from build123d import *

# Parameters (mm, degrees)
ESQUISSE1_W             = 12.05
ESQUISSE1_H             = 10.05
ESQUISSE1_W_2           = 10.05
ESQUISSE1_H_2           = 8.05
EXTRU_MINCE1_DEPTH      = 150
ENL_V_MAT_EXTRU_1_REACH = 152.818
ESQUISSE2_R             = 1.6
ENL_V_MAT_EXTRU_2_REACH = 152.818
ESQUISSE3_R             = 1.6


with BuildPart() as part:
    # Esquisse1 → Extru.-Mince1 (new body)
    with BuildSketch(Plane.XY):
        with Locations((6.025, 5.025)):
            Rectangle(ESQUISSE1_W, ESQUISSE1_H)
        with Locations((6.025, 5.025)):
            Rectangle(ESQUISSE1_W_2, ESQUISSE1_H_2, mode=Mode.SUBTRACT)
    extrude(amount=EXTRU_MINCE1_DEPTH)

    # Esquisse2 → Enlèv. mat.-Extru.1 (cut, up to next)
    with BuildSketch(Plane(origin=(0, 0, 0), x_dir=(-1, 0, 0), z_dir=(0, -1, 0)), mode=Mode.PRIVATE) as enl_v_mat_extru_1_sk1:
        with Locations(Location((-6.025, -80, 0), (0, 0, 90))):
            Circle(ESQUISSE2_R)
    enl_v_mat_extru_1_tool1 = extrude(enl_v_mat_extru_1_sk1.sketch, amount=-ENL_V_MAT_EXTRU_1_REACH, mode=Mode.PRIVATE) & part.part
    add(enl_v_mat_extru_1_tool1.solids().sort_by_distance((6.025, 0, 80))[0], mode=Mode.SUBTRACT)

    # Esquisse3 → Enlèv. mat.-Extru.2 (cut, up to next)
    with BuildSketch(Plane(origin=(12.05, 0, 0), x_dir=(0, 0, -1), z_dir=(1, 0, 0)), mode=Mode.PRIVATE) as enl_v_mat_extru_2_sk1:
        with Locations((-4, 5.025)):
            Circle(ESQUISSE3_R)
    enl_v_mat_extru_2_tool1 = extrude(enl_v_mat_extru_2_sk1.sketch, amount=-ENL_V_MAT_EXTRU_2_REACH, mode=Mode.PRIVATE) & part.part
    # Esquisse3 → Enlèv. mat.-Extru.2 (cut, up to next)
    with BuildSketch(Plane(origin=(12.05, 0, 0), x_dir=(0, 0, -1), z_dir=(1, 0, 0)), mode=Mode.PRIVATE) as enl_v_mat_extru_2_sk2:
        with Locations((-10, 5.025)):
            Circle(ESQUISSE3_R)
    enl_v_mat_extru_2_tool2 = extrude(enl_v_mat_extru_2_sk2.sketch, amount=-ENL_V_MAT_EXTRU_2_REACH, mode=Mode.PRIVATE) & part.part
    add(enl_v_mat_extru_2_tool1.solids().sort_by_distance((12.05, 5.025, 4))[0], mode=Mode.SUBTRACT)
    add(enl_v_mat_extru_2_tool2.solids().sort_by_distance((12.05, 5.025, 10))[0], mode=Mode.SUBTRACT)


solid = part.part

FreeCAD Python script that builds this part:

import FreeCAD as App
import Part
import Sketcher

V = App.Vector


def add_polygon(sketch, points):
    """Adds a closed chain of lines whose ends are joined by coincident constraints."""
    first, n = sketch.GeometryCount, len(points)
    for a, b in zip(points, points[1:] + points[:1]):
        sketch.addGeometry(Part.LineSegment(App.Vector(*a, 0), App.Vector(*b, 0)), False)
    for i in range(n):
        sketch.addConstraint(Sketcher.Constraint("Coincident", first + i, 2, first + (i + 1) % n, 1))

doc = App.newDocument("Part")
body = doc.addObject("PartDesign::Body", "Body")

sketch1 = doc.addObject("Sketcher::SketchObject", "Sketch")
body.addObject(sketch1)
sketch1.AttachmentSupport = (doc.XY_Plane, [""])
sketch1.MapMode = "FlatFace"
add_polygon(sketch1, [(0, 10), (0, 0), (12, 0), (12, 10)])
add_polygon(sketch1, [(11, 1), (1, 1), (1, 9), (11, 9)])
sketch1.addConstraint([
    Sketcher.Constraint("Vertical", 0),
    Sketcher.Constraint("Horizontal", 1),
    Sketcher.Constraint("Vertical", 2),
    Sketcher.Constraint("Horizontal", 3),
    Sketcher.Constraint("Horizontal", 4),
    Sketcher.Constraint("Vertical", 5),
    Sketcher.Constraint("Horizontal", 6),
    Sketcher.Constraint("Vertical", 7),
    Sketcher.Constraint("Coincident", 0, 2, -1, 1),
    Sketcher.Constraint("Equal", 6, 0),
    Sketcher.Constraint("DistanceX", -1, 1, 4, 2, 1.0),
    Sketcher.Constraint("DistanceY", -1, 1, 4, 2, 1.0),
    Sketcher.Constraint("DistanceY", 5, 2, 3, 2, 1.0),
    Sketcher.Constraint("DistanceX", 6, 2, 2, 2, 1.0),
    Sketcher.Constraint("DistanceX", 1, 1, 1, 2, 12.05),
])
pad1 = doc.addObject("PartDesign::Pad", "Pad")
body.addObject(pad1)
pad1.Profile = sketch1
pad1.Length = 150

sketch2 = doc.addObject("Sketcher::SketchObject", "Sketch001")
body.addObject(sketch2)
sketch2.AttachmentSupport = (doc.XZ_Plane, [""])
sketch2.MapMode = "FlatFace"
sketch2.addGeometry(Part.Circle(V(6, 80, 0), V(0, 0, 1), 1.6), False)
sketch2.addConstraint([
    Sketcher.Constraint("Diameter", 0, 3.2),
    Sketcher.Constraint("DistanceY", -1, 1, 0, 3, 80.0),
    Sketcher.Constraint("DistanceX", -1, 1, 0, 3, 6.025),
])
pocket1 = doc.addObject("PartDesign::Pocket", "Pocket")
body.addObject(pocket1)
pocket1.Profile = sketch2
pocket1.Type = "UpToFirst"

sketch3 = doc.addObject("Sketcher::SketchObject", "Sketch002")
body.addObject(sketch3)
sketch3.AttachmentSupport = (doc.YZ_Plane, [""])
sketch3.MapMode = "FlatFace"
sketch3.AttachmentOffset = App.Placement(V(0, 0, 12.05), App.Rotation())
sketch3.addGeometry(Part.Circle(V(5, 4, 0), V(0, 0, 1), 1.6), False)
sketch3.addConstraint([
    Sketcher.Constraint("Diameter", 0, 3.2),
    Sketcher.Constraint("DistanceY", -1, 1, 0, 3, 4.0),
    Sketcher.Constraint("DistanceX", -1, 1, 0, 3, 5.025),
])
pocket2 = doc.addObject("PartDesign::Pocket", "Pocket001")
body.addObject(pocket2)
pocket2.Profile = sketch3
pocket2.Type = "UpToFirst"

sketch4 = doc.addObject("Sketcher::SketchObject", "Sketch003")
body.addObject(sketch4)
sketch4.AttachmentSupport = (doc.YZ_Plane, [""])
sketch4.MapMode = "FlatFace"
sketch4.AttachmentOffset = App.Placement(V(0, 0, 12.05), App.Rotation())
sketch4.addGeometry(Part.Circle(V(5, 10, 0), V(0, 0, 1), 1.6), False)
sketch4.addConstraint([
    Sketcher.Constraint("Diameter", 0, 3.2),
    Sketcher.Constraint("DistanceY", -1, 1, 0, 3, 10.0),
    Sketcher.Constraint("DistanceX", -1, 1, 0, 3, 5.025),
])
pocket3 = doc.addObject("PartDesign::Pocket", "Pocket002")
body.addObject(pocket3)
pocket3.Profile = sketch4
pocket3.Type = "UpToFirst"

doc.recompute()
